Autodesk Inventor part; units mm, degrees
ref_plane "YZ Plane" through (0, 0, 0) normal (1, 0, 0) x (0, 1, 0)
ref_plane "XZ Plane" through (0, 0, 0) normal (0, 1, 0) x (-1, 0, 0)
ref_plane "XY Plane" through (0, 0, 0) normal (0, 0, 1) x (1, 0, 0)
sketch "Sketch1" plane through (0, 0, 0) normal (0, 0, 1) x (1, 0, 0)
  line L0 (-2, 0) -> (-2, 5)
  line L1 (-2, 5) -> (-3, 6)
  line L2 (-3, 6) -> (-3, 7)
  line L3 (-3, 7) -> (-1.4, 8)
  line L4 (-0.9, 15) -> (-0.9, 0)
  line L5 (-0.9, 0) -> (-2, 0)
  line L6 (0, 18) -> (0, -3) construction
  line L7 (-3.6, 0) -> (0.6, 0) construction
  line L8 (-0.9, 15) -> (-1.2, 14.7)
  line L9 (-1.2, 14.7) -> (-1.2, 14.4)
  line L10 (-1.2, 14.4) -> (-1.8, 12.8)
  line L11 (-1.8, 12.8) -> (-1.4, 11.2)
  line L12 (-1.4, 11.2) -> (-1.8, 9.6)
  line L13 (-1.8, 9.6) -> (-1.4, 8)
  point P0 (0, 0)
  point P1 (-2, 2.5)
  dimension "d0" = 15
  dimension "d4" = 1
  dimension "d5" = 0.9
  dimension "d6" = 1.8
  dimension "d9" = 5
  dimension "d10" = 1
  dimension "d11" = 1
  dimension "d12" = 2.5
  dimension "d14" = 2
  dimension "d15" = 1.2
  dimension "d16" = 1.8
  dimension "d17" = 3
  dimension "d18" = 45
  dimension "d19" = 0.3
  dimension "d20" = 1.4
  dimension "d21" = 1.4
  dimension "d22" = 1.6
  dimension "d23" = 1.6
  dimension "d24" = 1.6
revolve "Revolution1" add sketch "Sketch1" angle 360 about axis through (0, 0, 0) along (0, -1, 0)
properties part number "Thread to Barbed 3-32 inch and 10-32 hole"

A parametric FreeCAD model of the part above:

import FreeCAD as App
import Part
import Sketcher

V = App.Vector
Q = App.Units.Quantity


def add_polygon(sketch, points):
    """Adds a closed chain of lines whose ends are joined by coincident constraints."""
    first, n = sketch.GeometryCount, len(points)
    for a, b in zip(points, points[1:] + points[:1]):
        sketch.addGeometry(Part.LineSegment(App.Vector(*a, 0), App.Vector(*b, 0)), False)
    for i in range(n):
        sketch.addConstraint(Sketcher.Constraint("Coincident", first + i, 2, first + (i + 1) % n, 1))

doc = App.newDocument("Part")
params = doc.addObject("Spreadsheet::Sheet", "Params")
for row, (alias, value) in enumerate([
    ("sketch1_height", "5 mm"),
    ("sketch1_height2", "15 mm"),
    ("sketch1_height3", "1 mm"),
    ("sketch1_height4", "0.3 mm"),
    ("revolution_angle", "360 deg"),
], start=1):
    params.set(f"A{row}", alias)
    params.set(f"B{row}", "=" + value)
    params.setAlias(f"B{row}", alias)

body = doc.addObject("PartDesign::Body", "Body")

# Sketch on XY plane
sketch1 = body.newObject("Sketcher::SketchObject", "Sketch")
sketch1.AttachmentSupport = (doc.getObject("XY_Plane"), [""])
sketch1.MapMode = "FlatFace"
add_polygon(sketch1, [(-2, 5), (-2, 0), (-0.9, 0), (-0.9, 15), (-1.2, 14.7), (-1.2, 14.4), (-1.8, 12.8), (-1.4, 11.2), (-1.8, 9.6), (-1.4, 8), (-3, 7), (-3, 6)])  # lines 0-11
sketch1.addConstraint(Sketcher.Constraint("Vertical", 0))
sketch1.addConstraint(Sketcher.Constraint("Horizontal", 1))
sketch1.addConstraint(Sketcher.Constraint("Vertical", 2))
sketch1.addConstraint(Sketcher.Constraint("Vertical", 4))
sketch1.addConstraint(Sketcher.Constraint("Vertical", 10))
sketch1.addConstraint(Sketcher.Constraint("PointOnObject", 0, 2, -1))
sketch1.addConstraint(Sketcher.Constraint("Parallel", 6, 8))
sketch1.addConstraint(Sketcher.Constraint("Perpendicular", 3, 11))
sketch1.addConstraint(Sketcher.Constraint("Vertical", 5, 2, 7, 2))
sketch1.addConstraint(Sketcher.Constraint("Vertical", 6, 2, 8, 2))
sketch1.addConstraint(Sketcher.Constraint("Equal", 6, 7))
sketch1.addConstraint(Sketcher.Constraint("DistanceY", 0, 2, 0, 1, 5.0))
sketch1.addConstraint(Sketcher.Constraint("DistanceY", 2, 1, 2, 2, 15.0))
sketch1.addConstraint(Sketcher.Constraint("DistanceY", 10, 2, 10, 1, 1.0))
sketch1.addConstraint(Sketcher.Constraint("Angle", 11, Q("-45 deg")))
sketch1.addConstraint(Sketcher.Constraint("DistanceY", 4, 2, 4, 1, 0.3))
sketch1.addConstraint(Sketcher.Constraint("DistanceX", 0, 2, -1, 1, 2.0))
sketch1.addConstraint(Sketcher.Constraint("DistanceX", 9, 2, -1, 1, 3.0))
sketch1.addConstraint(Sketcher.Constraint("DistanceY", 9, 2, 8, 2, 1.0))
sketch1.addConstraint(Sketcher.Constraint("DistanceX", 1, 2, -1, 1, 0.9))
sketch1.addConstraint(Sketcher.Constraint("DistanceX", 3, 2, -1, 1, 1.2))
sketch1.addConstraint(Sketcher.Constraint("DistanceX", 5, 2, -1, 1, 1.8))
sketch1.addConstraint(Sketcher.Constraint("DistanceX", 6, 2, -1, 1, 1.4))
sketch1.addConstraint(Sketcher.Constraint("DistanceY", 5, 2, 4, 2, 1.6))
sketch1.setExpression("Constraints[23]", "Params.sketch1_height")
sketch1.setExpression("Constraints[24]", "Params.sketch1_height2")
sketch1.setExpression("Constraints[25]", "Params.sketch1_height3")
sketch1.setExpression("Constraints[27]", "Params.sketch1_height4")
revolution = body.newObject("PartDesign::Revolution", "Revolution")
revolution.Profile = sketch1
revolution.ReferenceAxis = (sketch1, ["V_Axis"])
revolution.setExpression("Angle", "Params.revolution_angle")

doc.recompute()
